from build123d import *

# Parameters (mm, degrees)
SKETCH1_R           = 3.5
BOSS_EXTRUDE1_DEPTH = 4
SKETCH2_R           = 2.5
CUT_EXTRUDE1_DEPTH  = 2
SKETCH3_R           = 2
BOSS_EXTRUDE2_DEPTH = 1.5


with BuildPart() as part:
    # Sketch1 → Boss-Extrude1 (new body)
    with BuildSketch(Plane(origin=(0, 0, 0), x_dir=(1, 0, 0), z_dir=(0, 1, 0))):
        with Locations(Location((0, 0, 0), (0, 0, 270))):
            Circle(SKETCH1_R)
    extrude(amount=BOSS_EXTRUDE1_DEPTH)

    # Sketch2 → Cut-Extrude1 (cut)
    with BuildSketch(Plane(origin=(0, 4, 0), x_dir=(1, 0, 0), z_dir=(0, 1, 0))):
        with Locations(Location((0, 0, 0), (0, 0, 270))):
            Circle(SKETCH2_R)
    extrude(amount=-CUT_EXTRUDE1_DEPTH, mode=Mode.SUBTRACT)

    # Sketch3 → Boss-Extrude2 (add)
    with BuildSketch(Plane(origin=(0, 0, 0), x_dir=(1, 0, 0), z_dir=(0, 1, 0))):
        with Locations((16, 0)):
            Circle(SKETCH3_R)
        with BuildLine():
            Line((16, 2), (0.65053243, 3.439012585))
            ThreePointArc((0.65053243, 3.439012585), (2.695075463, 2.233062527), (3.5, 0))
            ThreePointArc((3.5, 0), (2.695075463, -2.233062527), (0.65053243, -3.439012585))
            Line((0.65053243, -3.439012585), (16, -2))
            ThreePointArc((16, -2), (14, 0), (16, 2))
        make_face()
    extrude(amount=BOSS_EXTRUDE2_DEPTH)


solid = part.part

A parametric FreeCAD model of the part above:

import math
import FreeCAD as App
import Part
import Sketcher
from FreeCAD import Vector

doc = App.newDocument("Part")
body = doc.addObject("PartDesign::Body", "Body")

# Sketch on XZ plane
sketch1 = doc.addObject("Sketcher::SketchObject", "Sketch")
body.addObject(sketch1)
sketch1.AttachmentSupport = (doc.XZ_Plane, [""])
sketch1.MapMode = "FlatFace"
sketch1.addGeometry(Part.Circle(Vector(0, 0, 0), Vector(0, 0, 1), 3.5), False)
sketch1.addConstraint(Sketcher.Constraint("Coincident", 0, 3, -1, 1))
sketch1.addConstraint(Sketcher.Constraint("Diameter", 0, 7.0))
pad1 = doc.addObject("PartDesign::Pad", "Pad")
body.addObject(pad1)
pad1.Profile = sketch1
pad1.Length = 4
pad1.Reversed = True

# Sketch on XZ plane
sketch2 = doc.addObject("Sketcher::SketchObject", "Sketch001")
body.addObject(sketch2)
sketch2.AttachmentSupport = (doc.XZ_Plane, [""])
sketch2.MapMode = "FlatFace"
sketch2.AttachmentOffset = App.Placement(Vector(0, 0, -4), App.Rotation())
sketch2.addGeometry(Part.Circle(Vector(0, 0, 0), Vector(0, 0, 1), 2.5), False)
sketch2.addConstraint(Sketcher.Constraint("Coincident", 0, 3, -1, 1))
sketch2.addConstraint(Sketcher.Constraint("Diameter", 0, 5.0))
pocket1 = doc.addObject("PartDesign::Pocket", "Pocket")
body.addObject(pocket1)
pocket1.Profile = sketch2
pocket1.Length = 2
pocket1.Reversed = True

# Sketch on XZ plane
sketch3 = doc.addObject("Sketcher::SketchObject", "Sketch002")
body.addObject(sketch3)
sketch3.AttachmentSupport = (doc.XZ_Plane, [""])
sketch3.MapMode = "FlatFace"
sketch3.addGeometry(Part.LineSegment(Vector(16, -2, 0), Vector(0.7, -3.4, 0)), False)
sketch3.addGeometry(Part.ArcOfCircle(Part.Circle(Vector(0, 0, 0), Vector(0, 0, 1), 3.5), math.radians(-79), math.radians(0)), False)
sketch3.addGeometry(Part.ArcOfCircle(Part.Circle(Vector(0, 0, 0), Vector(0, 0, 1), 3.5), math.radians(0), math.radians(79)), False)
sketch3.addGeometry(Part.LineSegment(Vector(0.7, 3.4, 0), Vector(16, 2, 0)), False)
sketch3.addGeometry(Part.ArcOfCircle(Part.Circle(Vector(16, 0, 0), Vector(0, 0, 1), 2), math.radians(-90), math.radians(90)), False)
sketch3.addConstraint(Sketcher.Constraint("Coincident", 0, 2, 1, 1))
sketch3.addConstraint(Sketcher.Constraint("Tangent", 1, 2, 2, 1))
sketch3.addConstraint(Sketcher.Constraint("Coincident", 2, 2, 3, 1))
sketch3.addConstraint(Sketcher.Constraint("Coincident", 3, 2, 4, 2))
sketch3.addConstraint(Sketcher.Constraint("Coincident", 4, 1, 0, 1))
sketch3.addConstraint(Sketcher.Constraint("Coincident", 1, 3, -1, 1))
sketch3.addConstraint(Sketcher.Constraint("Equal", 1, 2))
sketch3.addConstraint(Sketcher.Constraint("Symmetric", 3, 2, 4, 1, -1))
sketch3.addConstraint(Sketcher.Constraint("PointOnObject", 1, 2, -1))
sketch3.addConstraint(Sketcher.Constraint("Vertical", 0, 2, 2, 2))
sketch3.addConstraint(Sketcher.Constraint("Vertical", 4, 3, 3, 2))
sketch3.addConstraint(Sketcher.Constraint("Radius", 4, 2.0))
sketch3.addConstraint(Sketcher.Constraint("Radius", 1, 3.5))
sketch3.addConstraint(Sketcher.Constraint("DistanceX", -1, 1, 4, 3, 16.0))
sketch3.addConstraint(Sketcher.Constraint("Distance", 0, 15.416774))
pad2 = doc.addObject("PartDesign::Pad", "Pad001")
body.addObject(pad2)
pad2.Profile = sketch3
pad2.Length = 1.5
pad2.Reversed = True

doc.recompute()
